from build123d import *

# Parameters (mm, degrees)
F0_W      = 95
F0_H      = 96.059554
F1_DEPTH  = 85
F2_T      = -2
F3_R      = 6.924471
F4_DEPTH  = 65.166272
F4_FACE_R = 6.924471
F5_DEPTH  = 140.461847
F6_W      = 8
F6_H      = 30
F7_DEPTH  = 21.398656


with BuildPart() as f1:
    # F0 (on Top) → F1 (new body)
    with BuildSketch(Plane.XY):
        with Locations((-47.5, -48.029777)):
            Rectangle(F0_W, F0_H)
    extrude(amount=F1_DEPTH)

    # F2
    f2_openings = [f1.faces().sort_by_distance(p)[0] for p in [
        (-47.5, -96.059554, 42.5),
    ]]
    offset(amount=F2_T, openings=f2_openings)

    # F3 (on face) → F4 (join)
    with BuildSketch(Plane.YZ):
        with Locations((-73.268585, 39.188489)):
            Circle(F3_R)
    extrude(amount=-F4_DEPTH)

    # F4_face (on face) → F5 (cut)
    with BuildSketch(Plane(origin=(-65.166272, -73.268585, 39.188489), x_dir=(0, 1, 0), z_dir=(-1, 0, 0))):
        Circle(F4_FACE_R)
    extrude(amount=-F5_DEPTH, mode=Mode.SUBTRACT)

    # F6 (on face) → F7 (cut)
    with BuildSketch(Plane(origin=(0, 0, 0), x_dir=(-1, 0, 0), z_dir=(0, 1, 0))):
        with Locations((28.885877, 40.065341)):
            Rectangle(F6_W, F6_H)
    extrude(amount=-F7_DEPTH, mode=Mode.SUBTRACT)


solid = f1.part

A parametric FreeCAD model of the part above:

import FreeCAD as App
import Part
import Sketcher

V = App.Vector


def faces_at(feature, points):
    """Names of the faces that lie closest to the given points."""
    faces = feature.Shape.Faces
    near = lambda p: min(range(len(faces)), key=lambda i: faces[i].distToShape(Part.Vertex(*p))[0])
    return sorted({f"Face{near(p) + 1}" for p in points})

doc = App.newDocument("Part")
body = doc.addObject("PartDesign::Body", "Body")

sketch1 = body.newObject("Sketcher::SketchObject", "Sketch")
sketch1.AttachmentSupport = (doc.getObject("XY_Plane"), [""])
sketch1.MapMode = "FlatFace"
sketch1.addGeometry(Part.LineSegment(V(-95, 0, 0), V(-95, -96, 0)), False)
sketch1.addGeometry(Part.LineSegment(V(-95, -96, 0), V(0, -96, 0)), False)
sketch1.addGeometry(Part.LineSegment(V(0, -96, 0), V(0, 0, 0)), False)
sketch1.addGeometry(Part.LineSegment(V(0, 0, 0), V(-95, 0, 0)), False)
sketch1.addConstraint(Sketcher.Constraint("Coincident", 0, 2, 1, 1))
sketch1.addConstraint(Sketcher.Constraint("Coincident", 1, 2, 2, 1))
sketch1.addConstraint(Sketcher.Constraint("Coincident", 2, 2, 3, 1))
sketch1.addConstraint(Sketcher.Constraint("Coincident", 3, 2, 0, 1))
sketch1.addConstraint(Sketcher.Constraint("Vertical", 0))
sketch1.addConstraint(Sketcher.Constraint("Horizontal", 1))
sketch1.addConstraint(Sketcher.Constraint("Vertical", 2))
sketch1.addConstraint(Sketcher.Constraint("Horizontal", 3))
sketch1.addConstraint(Sketcher.Constraint("Coincident", 2, 2, -1, 1))
sketch1.addConstraint(Sketcher.Constraint("DistanceX", 1, 1, 1, 2, 95.0))
sketch1.addConstraint(Sketcher.Constraint("DistanceY", 0, 2, 0, 1, 96.059554))
pad1 = body.newObject("PartDesign::Pad", "Pad")
pad1.Profile = sketch1
pad1.Length = 85
doc.recompute()

thickness = body.newObject("PartDesign::Thickness", "Thickness")
thickness.Base = (pad1, faces_at(pad1, [(-47.5, -96.06, 42.5)]))
thickness.Value = 2
thickness.Reversed = True
thickness.Join = "Arc"

sketch2 = body.newObject("Sketcher::SketchObject", "Sketch001")
sketch2.AttachmentSupport = (doc.getObject("YZ_Plane"), [""])
sketch2.MapMode = "FlatFace"
sketch2.addGeometry(Part.Circle(V(-73, 39, 0), V(0, 0, 1), 7), False)
sketch2.addConstraint(Sketcher.Constraint("Diameter", 0, 13.848942))
sketch2.addConstraint(Sketcher.Constraint("DistanceY", -1, 1, 0, 3, 39.188489))
sketch2.addConstraint(Sketcher.Constraint("DistanceX", 0, 3, -1, 1, 73.268585))
pad2 = body.newObject("PartDesign::Pad", "Pad001")
pad2.Profile = sketch2
pad2.Length = 65.166272
pad2.Reversed = True

sketch3 = body.newObject("Sketcher::SketchObject", "Sketch002")
sketch3.AttachmentSupport = (doc.getObject("YZ_Plane"), [""])
sketch3.MapMode = "FlatFace"
sketch3.AttachmentOffset = App.Placement(V(0, 0, -65.166272), App.Rotation())
sketch3.addGeometry(Part.Circle(V(-73, 39, 0), V(0, 0, 1), 7), False)
sketch3.addConstraint(Sketcher.Constraint("Diameter", 0, 13.848942))
sketch3.addConstraint(Sketcher.Constraint("DistanceY", -1, 1, 0, 3, 39.188489))
sketch3.addConstraint(Sketcher.Constraint("DistanceX", 0, 3, -1, 1, 73.268585))
pocket1 = body.newObject("PartDesign::Pocket", "Pocket")
pocket1.Profile = sketch3
pocket1.Length = 140.461847
pocket1.Reversed = True

sketch4 = body.newObject("Sketcher::SketchObject", "Sketch003")
sketch4.AttachmentSupport = (doc.getObject("XZ_Plane"), [""])
sketch4.MapMode = "FlatFace"
sketch4.addGeometry(Part.LineSegment(V(-25, 55, 0), V(-25, 25, 0)), False)
sketch4.addGeometry(Part.LineSegment(V(-25, 25, 0), V(-33, 25, 0)), False)
sketch4.addGeometry(Part.LineSegment(V(-33, 25, 0), V(-33, 55, 0)), False)
sketch4.addGeometry(Part.LineSegment(V(-33, 55, 0), V(-25, 55, 0)), False)
sketch4.addConstraint(Sketcher.Constraint("Coincident", 0, 2, 1, 1))
sketch4.addConstraint(Sketcher.Constraint("Coincident", 1, 2, 2, 1))
sketch4.addConstraint(Sketcher.Constraint("Coincident", 2, 2, 3, 1))
sketch4.addConstraint(Sketcher.Constraint("Coincident", 3, 2, 0, 1))
sketch4.addConstraint(Sketcher.Constraint("Vertical", 0))
sketch4.addConstraint(Sketcher.Constraint("Horizontal", 1))
sketch4.addConstraint(Sketcher.Constraint("Vertical", 2))
sketch4.addConstraint(Sketcher.Constraint("Horizontal", 3))
sketch4.addConstraint(Sketcher.Constraint("DistanceX", 1, 2, 1, 1, 8.0))
sketch4.addConstraint(Sketcher.Constraint("DistanceY", 0, 2, 0, 1, 30.0))
sketch4.addConstraint(Sketcher.Constraint("DistanceY", -1, 1, 0, 2, 25.065341))
sketch4.addConstraint(Sketcher.Constraint("DistanceX", 0, 2, -1, 1, 24.885877))
pocket2 = body.newObject("PartDesign::Pocket", "Pocket001")
pocket2.Profile = sketch4
pocket2.Length = 21.398656
pocket2.Reversed = True

doc.recompute()
